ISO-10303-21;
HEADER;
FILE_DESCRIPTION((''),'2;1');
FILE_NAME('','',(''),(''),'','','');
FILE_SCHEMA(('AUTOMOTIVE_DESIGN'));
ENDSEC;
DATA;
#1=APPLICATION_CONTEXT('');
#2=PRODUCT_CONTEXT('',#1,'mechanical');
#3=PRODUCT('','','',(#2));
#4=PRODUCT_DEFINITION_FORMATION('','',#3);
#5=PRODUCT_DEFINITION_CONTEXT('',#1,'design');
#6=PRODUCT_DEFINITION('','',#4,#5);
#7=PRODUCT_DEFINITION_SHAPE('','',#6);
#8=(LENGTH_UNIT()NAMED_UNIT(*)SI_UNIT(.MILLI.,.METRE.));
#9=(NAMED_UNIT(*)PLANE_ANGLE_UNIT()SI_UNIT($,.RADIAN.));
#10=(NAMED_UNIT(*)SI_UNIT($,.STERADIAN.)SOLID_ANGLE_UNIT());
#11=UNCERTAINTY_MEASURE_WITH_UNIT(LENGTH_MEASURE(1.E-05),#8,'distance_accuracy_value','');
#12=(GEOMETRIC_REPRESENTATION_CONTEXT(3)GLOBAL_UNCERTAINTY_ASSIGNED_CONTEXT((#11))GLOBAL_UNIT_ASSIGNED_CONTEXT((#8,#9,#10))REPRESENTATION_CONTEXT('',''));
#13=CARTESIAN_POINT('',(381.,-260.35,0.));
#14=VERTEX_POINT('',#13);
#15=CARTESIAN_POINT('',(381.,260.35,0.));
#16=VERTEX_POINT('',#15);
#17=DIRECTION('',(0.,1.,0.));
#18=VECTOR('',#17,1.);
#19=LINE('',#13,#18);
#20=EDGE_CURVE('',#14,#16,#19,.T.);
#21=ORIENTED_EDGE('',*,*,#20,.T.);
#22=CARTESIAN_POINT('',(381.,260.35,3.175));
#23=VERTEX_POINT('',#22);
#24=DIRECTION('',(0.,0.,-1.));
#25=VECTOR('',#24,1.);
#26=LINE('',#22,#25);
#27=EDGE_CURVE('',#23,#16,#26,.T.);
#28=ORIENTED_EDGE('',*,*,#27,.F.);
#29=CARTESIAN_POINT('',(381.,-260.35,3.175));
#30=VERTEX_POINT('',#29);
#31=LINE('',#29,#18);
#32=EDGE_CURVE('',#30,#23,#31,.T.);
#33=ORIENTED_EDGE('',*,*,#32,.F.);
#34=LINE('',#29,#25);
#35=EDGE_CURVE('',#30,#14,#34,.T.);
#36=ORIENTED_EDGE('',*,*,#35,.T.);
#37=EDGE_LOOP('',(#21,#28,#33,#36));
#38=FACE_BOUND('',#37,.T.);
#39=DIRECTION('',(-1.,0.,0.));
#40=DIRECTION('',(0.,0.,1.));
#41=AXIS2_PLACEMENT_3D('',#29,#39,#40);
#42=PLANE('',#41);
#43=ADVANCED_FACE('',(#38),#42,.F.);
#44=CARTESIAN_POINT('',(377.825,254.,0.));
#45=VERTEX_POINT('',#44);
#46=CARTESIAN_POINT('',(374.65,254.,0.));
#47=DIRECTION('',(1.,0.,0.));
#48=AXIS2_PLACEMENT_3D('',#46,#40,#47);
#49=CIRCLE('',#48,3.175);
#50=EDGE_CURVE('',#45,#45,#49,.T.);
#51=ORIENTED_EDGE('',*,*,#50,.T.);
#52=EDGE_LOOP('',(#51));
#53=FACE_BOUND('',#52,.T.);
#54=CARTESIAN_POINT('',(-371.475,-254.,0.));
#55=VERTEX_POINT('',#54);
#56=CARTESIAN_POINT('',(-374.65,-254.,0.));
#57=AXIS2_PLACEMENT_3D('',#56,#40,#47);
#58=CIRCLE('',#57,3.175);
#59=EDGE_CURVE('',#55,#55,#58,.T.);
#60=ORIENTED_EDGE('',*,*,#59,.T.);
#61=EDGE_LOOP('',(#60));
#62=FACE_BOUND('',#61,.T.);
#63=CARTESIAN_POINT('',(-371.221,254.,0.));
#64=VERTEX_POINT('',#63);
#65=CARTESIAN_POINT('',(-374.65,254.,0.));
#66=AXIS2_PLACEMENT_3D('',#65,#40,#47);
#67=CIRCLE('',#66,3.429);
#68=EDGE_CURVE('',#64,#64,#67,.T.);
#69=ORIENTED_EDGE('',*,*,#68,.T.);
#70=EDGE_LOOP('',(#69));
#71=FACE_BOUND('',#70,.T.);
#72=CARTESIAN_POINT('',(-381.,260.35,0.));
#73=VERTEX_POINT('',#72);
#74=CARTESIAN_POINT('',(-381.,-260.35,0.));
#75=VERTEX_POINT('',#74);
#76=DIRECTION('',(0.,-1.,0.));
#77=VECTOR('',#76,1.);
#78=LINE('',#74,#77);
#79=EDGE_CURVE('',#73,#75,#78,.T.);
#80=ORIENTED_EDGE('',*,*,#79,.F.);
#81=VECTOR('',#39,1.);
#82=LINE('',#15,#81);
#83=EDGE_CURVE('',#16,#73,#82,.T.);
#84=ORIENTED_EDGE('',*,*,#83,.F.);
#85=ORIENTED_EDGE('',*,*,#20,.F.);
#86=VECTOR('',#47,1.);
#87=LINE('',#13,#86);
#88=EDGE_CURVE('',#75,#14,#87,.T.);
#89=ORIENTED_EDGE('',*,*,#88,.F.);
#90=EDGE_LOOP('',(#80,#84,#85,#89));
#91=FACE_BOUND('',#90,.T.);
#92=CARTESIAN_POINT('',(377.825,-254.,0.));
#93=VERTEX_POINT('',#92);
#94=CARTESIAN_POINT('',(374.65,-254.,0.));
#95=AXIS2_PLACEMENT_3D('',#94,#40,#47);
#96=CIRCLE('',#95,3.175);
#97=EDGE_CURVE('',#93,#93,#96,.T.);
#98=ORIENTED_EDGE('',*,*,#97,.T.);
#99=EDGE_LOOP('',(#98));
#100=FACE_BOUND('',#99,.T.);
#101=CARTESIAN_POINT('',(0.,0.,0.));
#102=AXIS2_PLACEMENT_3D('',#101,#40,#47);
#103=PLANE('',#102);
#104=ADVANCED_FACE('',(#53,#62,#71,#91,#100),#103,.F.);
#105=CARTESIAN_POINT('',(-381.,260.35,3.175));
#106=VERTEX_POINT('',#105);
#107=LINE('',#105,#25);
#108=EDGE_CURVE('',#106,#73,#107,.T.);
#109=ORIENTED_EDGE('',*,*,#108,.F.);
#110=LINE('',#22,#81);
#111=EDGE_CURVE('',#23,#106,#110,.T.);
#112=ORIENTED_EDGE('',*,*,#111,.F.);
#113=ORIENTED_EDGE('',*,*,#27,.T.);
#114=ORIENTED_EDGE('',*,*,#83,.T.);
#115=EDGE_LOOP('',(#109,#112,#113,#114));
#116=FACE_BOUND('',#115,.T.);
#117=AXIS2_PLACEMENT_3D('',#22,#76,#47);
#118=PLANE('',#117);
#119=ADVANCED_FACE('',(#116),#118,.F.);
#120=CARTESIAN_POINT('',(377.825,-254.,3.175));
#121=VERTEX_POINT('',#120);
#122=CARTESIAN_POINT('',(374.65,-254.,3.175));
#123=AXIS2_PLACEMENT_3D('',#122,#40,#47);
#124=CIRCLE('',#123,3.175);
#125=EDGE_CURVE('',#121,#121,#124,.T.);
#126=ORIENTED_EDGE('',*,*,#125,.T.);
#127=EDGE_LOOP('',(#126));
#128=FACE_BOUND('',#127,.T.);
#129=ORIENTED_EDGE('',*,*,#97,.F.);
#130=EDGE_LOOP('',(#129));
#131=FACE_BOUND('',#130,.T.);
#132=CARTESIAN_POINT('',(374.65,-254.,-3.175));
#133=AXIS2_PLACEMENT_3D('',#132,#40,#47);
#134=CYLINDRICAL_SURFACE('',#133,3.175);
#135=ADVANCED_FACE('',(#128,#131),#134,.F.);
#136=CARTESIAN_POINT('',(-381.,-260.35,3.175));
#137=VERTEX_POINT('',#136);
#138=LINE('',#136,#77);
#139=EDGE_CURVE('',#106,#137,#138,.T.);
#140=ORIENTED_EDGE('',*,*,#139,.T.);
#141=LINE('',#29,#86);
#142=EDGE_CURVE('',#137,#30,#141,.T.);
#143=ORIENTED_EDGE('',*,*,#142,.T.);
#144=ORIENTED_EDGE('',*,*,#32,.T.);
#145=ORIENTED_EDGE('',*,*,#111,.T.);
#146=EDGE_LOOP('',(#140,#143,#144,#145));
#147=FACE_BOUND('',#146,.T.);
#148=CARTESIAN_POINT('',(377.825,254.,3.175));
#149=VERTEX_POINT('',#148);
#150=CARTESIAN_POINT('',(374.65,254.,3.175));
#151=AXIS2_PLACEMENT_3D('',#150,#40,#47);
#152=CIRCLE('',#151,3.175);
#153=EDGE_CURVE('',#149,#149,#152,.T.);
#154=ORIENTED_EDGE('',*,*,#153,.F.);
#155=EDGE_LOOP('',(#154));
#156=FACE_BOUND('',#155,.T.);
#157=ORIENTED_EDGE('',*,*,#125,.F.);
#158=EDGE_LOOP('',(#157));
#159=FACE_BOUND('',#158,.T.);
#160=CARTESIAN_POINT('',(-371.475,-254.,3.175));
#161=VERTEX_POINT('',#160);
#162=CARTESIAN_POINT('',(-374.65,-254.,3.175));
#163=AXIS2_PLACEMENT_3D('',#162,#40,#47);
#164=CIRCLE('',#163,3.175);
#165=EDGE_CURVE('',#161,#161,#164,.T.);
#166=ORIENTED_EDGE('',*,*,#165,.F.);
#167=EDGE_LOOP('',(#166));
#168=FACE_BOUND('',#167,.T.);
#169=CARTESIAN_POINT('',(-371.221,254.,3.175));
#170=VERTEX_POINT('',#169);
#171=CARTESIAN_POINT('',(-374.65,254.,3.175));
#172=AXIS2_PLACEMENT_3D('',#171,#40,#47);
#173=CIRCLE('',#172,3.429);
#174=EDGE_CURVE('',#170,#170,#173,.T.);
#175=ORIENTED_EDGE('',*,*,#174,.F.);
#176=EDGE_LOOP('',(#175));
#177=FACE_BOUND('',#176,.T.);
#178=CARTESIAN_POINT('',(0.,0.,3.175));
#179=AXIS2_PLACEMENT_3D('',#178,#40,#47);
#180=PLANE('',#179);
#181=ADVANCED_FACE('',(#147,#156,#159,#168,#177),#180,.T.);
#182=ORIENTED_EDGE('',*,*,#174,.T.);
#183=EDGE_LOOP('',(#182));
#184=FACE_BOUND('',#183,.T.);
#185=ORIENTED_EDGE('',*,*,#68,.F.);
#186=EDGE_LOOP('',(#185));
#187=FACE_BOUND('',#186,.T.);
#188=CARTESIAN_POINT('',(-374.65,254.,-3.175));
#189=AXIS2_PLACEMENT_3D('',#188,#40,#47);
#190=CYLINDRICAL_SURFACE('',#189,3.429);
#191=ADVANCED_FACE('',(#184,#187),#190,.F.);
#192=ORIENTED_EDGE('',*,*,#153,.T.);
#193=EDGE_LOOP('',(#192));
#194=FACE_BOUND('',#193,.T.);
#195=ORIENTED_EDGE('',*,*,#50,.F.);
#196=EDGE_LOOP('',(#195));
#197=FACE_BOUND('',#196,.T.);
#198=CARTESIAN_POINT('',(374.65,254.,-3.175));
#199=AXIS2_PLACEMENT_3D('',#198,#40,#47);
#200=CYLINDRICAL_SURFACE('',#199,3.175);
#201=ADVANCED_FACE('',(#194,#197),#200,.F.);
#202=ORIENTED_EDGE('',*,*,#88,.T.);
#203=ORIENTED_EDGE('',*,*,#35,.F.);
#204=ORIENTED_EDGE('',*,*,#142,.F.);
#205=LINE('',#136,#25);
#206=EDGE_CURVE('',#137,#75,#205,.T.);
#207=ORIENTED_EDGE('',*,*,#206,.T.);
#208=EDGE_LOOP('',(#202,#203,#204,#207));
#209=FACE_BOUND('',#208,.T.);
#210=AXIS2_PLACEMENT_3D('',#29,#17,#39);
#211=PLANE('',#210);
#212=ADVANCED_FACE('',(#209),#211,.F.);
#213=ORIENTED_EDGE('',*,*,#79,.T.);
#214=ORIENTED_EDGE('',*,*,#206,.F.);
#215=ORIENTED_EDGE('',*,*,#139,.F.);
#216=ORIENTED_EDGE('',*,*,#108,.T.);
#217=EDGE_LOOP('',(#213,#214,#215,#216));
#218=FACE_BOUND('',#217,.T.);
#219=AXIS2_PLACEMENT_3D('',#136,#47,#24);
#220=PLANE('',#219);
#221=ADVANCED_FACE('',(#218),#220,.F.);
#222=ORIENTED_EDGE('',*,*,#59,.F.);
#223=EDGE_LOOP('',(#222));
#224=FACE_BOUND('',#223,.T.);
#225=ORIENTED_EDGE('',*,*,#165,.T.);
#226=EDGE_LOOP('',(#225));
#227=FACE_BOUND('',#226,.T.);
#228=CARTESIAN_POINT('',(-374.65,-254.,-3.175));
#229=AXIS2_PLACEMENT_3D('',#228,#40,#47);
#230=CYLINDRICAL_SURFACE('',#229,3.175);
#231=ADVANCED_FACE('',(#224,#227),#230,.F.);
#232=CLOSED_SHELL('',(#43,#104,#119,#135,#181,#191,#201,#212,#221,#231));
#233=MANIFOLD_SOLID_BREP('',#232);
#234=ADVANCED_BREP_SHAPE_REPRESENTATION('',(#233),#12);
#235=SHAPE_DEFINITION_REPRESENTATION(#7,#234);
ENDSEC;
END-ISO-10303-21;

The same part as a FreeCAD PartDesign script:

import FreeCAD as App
import Part
import Sketcher

V = App.Vector
Q = App.Units.Quantity


def add_polygon(sketch, points):
    """Adds a closed chain of lines whose ends are joined by coincident constraints."""
    first, n = sketch.GeometryCount, len(points)
    for a, b in zip(points, points[1:] + points[:1]):
        sketch.addGeometry(Part.LineSegment(App.Vector(*a, 0), App.Vector(*b, 0)), False)
    for i in range(n):
        sketch.addConstraint(Sketcher.Constraint("Coincident", first + i, 2, first + (i + 1) % n, 1))

doc = App.newDocument("Part")
body = doc.addObject("PartDesign::Body", "Body")

sketch1 = body.newObject("Sketcher::SketchObject", "Sketch")
sketch1.AttachmentSupport = (doc.getObject("XY_Plane"), [""])
sketch1.MapMode = "FlatFace"
add_polygon(sketch1, [(-381, 260), (-381, -260), (381, -260), (381, 260)])
sketch1.addConstraint(Sketcher.Constraint("Vertical", 0))
sketch1.addConstraint(Sketcher.Constraint("Horizontal", 1))
sketch1.addConstraint(Sketcher.Constraint("Vertical", 2))
sketch1.addConstraint(Sketcher.Constraint("Horizontal", 3))
sketch1.addConstraint(Sketcher.Constraint("Symmetric", 0, 2, 2, 2, -1, 1))
sketch1.addConstraint(Sketcher.Constraint("DistanceX", 1, 1, 1, 2, Q("30 in")))
sketch1.addConstraint(Sketcher.Constraint("DistanceY", 0, 2, 0, 1, Q("20.5 in")))
pad1 = body.newObject("PartDesign::Pad", "Pad")
pad1.Profile = sketch1
pad1.Length = Q("0.125 in")

sketch2 = body.newObject("Sketcher::SketchObject", "Sketch001")
sketch2.AttachmentSupport = (doc.getObject("XY_Plane"), [""])
sketch2.MapMode = "FlatFace"
sketch2.AttachmentOffset = App.Placement(V(0, 0, 0.125 * 25.4), App.Rotation())
sketch2.addGeometry(Part.Circle(V(-374.6, 254, 0), V(0, 0, 1), 3.4), False)
sketch2.addGeometry(Part.Circle(V(374.6, 254, 0), V(0, 0, 1), 3.2), False)
sketch2.addGeometry(Part.Circle(V(-374.6, -254, 0), V(0, 0, 1), 3.2), False)
sketch2.addGeometry(Part.Circle(V(374.6, -254, 0), V(0, 0, 1), 3.2), False)
sketch2.addConstraint(Sketcher.Constraint("Equal", 1, 2))
sketch2.addConstraint(Sketcher.Constraint("Equal", 2, 3))
sketch2.addConstraint(Sketcher.Constraint("Symmetric", 1, 3, 2, 3, -1, 1))
sketch2.addConstraint(Sketcher.Constraint("Symmetric", 0, 3, 3, 3, -1, 1))
sketch2.addConstraint(Sketcher.Constraint("Symmetric", 0, 3, 1, 3, -2))
sketch2.addConstraint(Sketcher.Constraint("Diameter", 0, Q("0.27 in")))
sketch2.addConstraint(Sketcher.Constraint("Diameter", 1, Q("0.25 in")))
sketch2.addConstraint(Sketcher.Constraint("DistanceY", -1, 1, 0, 3, Q("10 in")))
sketch2.addConstraint(Sketcher.Constraint("DistanceX", 0, 3, 1, 3, Q("29.5 in")))
pocket1 = body.newObject("PartDesign::Pocket", "Pocket")
pocket1.Profile = sketch2
pocket1.Length = Q("0.25 in")

doc.recompute()
